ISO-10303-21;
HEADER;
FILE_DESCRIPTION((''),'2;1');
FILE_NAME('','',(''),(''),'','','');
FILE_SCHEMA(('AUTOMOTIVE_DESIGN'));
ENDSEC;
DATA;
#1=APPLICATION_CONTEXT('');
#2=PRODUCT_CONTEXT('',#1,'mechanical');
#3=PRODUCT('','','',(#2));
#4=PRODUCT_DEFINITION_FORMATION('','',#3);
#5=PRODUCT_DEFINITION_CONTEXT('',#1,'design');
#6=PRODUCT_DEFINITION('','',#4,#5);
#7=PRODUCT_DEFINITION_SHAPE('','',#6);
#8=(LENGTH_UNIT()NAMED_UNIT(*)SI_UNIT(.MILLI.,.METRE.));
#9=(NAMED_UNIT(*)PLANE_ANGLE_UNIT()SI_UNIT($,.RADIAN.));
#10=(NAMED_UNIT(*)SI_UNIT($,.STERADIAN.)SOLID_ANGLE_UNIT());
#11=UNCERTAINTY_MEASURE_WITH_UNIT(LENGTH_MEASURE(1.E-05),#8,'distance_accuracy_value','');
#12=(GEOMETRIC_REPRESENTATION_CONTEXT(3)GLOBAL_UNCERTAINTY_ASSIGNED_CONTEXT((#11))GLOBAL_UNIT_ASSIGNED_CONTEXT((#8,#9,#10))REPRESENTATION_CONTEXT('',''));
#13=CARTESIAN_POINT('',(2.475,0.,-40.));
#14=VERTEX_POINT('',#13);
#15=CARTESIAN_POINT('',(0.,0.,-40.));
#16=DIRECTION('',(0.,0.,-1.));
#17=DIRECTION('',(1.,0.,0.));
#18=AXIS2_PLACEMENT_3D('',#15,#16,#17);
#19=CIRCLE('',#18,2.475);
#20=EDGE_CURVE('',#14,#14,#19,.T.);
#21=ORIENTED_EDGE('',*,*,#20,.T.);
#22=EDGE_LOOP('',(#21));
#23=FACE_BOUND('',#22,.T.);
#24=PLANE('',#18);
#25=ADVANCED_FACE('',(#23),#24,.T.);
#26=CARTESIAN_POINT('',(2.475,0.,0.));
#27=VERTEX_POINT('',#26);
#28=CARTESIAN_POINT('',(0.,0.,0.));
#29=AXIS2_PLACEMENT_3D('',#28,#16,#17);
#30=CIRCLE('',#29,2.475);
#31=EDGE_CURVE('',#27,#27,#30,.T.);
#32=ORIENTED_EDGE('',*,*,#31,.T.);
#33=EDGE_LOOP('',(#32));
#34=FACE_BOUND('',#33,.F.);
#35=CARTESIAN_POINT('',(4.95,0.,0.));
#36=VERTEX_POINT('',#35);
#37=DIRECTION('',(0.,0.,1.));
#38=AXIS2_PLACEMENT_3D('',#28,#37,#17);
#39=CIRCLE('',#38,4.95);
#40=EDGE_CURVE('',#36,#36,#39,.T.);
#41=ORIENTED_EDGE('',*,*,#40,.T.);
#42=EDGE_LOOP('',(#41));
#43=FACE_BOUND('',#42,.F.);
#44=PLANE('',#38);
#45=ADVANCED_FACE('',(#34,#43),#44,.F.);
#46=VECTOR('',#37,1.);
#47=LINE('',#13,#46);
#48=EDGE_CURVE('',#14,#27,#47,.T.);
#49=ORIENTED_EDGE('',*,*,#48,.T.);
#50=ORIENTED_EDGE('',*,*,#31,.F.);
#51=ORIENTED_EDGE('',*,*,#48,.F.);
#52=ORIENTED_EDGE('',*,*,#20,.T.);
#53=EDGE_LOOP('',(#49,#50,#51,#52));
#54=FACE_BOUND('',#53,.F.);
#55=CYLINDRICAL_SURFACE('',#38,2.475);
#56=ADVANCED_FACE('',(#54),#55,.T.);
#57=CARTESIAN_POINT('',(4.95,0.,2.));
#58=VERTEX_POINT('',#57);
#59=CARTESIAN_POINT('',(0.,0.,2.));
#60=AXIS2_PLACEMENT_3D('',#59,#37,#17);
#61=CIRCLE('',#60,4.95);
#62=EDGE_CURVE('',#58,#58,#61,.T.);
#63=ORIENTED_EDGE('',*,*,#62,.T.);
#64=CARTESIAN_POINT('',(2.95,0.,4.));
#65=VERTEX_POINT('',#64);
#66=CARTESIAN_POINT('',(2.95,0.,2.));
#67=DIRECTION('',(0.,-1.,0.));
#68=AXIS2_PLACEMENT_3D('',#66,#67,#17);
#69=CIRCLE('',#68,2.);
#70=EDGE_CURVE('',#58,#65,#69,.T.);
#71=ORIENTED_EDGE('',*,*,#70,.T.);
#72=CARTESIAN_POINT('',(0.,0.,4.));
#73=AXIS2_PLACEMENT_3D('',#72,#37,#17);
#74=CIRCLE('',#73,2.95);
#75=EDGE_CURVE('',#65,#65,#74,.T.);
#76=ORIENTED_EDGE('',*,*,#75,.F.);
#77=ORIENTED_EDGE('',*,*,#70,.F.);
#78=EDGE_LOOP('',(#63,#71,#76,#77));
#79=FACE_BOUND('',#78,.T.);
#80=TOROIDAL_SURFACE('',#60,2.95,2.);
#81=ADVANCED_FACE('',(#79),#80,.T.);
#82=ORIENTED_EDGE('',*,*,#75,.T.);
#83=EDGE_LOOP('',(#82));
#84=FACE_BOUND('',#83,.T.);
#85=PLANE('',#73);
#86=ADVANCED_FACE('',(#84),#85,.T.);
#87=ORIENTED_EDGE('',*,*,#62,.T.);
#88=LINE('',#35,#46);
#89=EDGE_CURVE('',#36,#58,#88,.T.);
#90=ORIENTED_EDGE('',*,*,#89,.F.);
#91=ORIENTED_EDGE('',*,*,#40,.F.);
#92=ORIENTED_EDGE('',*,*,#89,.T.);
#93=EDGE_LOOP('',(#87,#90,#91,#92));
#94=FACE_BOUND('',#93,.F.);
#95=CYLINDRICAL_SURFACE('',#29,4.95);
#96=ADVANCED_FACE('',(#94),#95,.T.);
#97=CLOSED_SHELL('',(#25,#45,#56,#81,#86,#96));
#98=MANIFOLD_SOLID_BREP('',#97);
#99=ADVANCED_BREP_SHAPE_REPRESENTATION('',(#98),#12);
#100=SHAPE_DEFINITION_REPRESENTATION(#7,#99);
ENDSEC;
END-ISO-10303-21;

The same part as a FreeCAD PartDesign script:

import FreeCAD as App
import Part
import Sketcher

V = App.Vector
Q = App.Units.Quantity


def edges_at(feature, points):
    """Names of the edges that pass closest to the given points."""
    edges = feature.Shape.Edges
    near = lambda p: min(range(len(edges)), key=lambda i: edges[i].distToShape(Part.Vertex(*p))[0])
    return sorted({f"Edge{near(p) + 1}" for p in points})

doc = App.newDocument("Part")
params = doc.addObject("Spreadsheet::Sheet", "Params")
for row, (alias, value) in enumerate([
    ("sketch1_diameter", "9.9 mm"),
    ("pad1_length", "4 mm"),
    ("fillet_radius", "2 mm"),
    ("sketch2_diameter", "4.95 mm"),
    ("pad2_length", "25 mm"),
    ("sketch3_diameter", "4.95 mm"),
    ("pad3_length", "40 mm"),
], start=1):
    params.set(f"A{row}", alias)
    params.set(f"B{row}", "=" + value)
    params.setAlias(f"B{row}", alias)

body = doc.addObject("PartDesign::Body", "Body")

sketch1 = body.newObject("Sketcher::SketchObject", "Sketch")
sketch1.AttachmentSupport = (doc.getObject("XY_Plane"), [""])
sketch1.MapMode = "FlatFace"
sketch1.addGeometry(Part.Circle(V(0, 0, 0), V(0, 0, 1), 5), False)
sketch1.addConstraint(Sketcher.Constraint("Coincident", 0, 3, -1, 1))
sketch1.addConstraint(Sketcher.Constraint("Diameter", 0, Q("9.9 mm")))
sketch1.setExpression("Constraints[1]", "Params.sketch1_diameter")
pad1 = body.newObject("PartDesign::Pad", "Pad")
pad1.Profile = sketch1
pad1.setExpression("Length", "Params.pad1_length")
doc.recompute()

fillet = body.newObject("PartDesign::Fillet", "Fillet")
fillet.Base = (pad1, edges_at(pad1, [(-4.95, 0, 4)]))
fillet.setExpression("Radius", "Params.fillet_radius")

sketch2 = body.newObject("Sketcher::SketchObject", "Sketch001")
sketch2.AttachmentSupport = (doc.getObject("XY_Plane"), [""])
sketch2.MapMode = "FlatFace"
sketch2.addGeometry(Part.Circle(V(0, 0, 0), V(0, 0, 1), 2.5), False)
sketch2.addConstraint(Sketcher.Constraint("Coincident", 0, 3, -1, 1))
sketch2.addConstraint(Sketcher.Constraint("Diameter", 0, Q("4.95 mm")))
sketch2.setExpression("Constraints[1]", "Params.sketch2_diameter")
pad2 = body.newObject("PartDesign::Pad", "Pad001")
pad2.Profile = sketch2
pad2.setExpression("Length", "Params.pad2_length")
pad2.Reversed = True

sketch3 = body.newObject("Sketcher::SketchObject", "Sketch002")
sketch3.AttachmentSupport = (doc.getObject("XY_Plane"), [""])
sketch3.MapMode = "FlatFace"
sketch3.addGeometry(Part.Circle(V(0, 0, 0), V(0, 0, 1), 2.5), False)
sketch3.addConstraint(Sketcher.Constraint("Coincident", 0, 3, -1, 1))
sketch3.addConstraint(Sketcher.Constraint("Diameter", 0, Q("4.95 mm")))
sketch3.setExpression("Constraints[1]", "Params.sketch3_diameter")
pad3 = body.newObject("PartDesign::Pad", "Pad002")
pad3.Profile = sketch3
pad3.setExpression("Length", "Params.pad3_length")
pad3.Reversed = True

doc.recompute()
